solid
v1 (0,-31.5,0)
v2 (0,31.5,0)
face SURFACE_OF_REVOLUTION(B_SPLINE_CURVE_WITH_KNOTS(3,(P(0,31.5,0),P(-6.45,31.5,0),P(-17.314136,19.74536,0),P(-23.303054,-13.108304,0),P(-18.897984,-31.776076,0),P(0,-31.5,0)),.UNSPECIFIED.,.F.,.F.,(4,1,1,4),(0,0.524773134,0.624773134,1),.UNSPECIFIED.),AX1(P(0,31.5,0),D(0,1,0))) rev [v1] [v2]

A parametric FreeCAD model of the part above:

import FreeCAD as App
import Part
import Sketcher

V = App.Vector

doc = App.newDocument("Part")
body = doc.addObject("PartDesign::Body", "Body")

# Sketch on XY plane
sketch1 = body.newObject("Sketcher::SketchObject", "Sketch")
sketch1.AttachmentSupport = (doc.getObject("XY_Plane"), [""])
sketch1.MapMode = "FlatFace"
sketch1.addGeometry(Part.LineSegment(V(0, -31.5, 0), V(0, 31.5, 0)), False)
sketch1.addGeometry(Part.BSplineCurve([V(0, 31.5, 0), V(-6.45, 31.5, 0), V(-17.314136, 19.74536, 0), V(-23.303054, -13.108304, 0), V(-18.897984, -31.776076, 0), V(0, -31.5, 0)], [4, 1, 1, 4], [0, 0.524773134, 0.624773134, 1], False, 3, [1, 1, 1, 1, 1, 1], False), False)
sketch1.addConstraint(Sketcher.Constraint("Block", 1))
sketch1.addConstraint(Sketcher.Constraint("Coincident", 0, 1, 1, 2))
sketch1.addConstraint(Sketcher.Constraint("Coincident", 1, 1, 0, 2))
revolution = body.newObject("PartDesign::Revolution", "Revolution")
revolution.Profile = sketch1
revolution.ReferenceAxis = (sketch1, ["V_Axis"])
revolution.Angle = 360

doc.recompute()
